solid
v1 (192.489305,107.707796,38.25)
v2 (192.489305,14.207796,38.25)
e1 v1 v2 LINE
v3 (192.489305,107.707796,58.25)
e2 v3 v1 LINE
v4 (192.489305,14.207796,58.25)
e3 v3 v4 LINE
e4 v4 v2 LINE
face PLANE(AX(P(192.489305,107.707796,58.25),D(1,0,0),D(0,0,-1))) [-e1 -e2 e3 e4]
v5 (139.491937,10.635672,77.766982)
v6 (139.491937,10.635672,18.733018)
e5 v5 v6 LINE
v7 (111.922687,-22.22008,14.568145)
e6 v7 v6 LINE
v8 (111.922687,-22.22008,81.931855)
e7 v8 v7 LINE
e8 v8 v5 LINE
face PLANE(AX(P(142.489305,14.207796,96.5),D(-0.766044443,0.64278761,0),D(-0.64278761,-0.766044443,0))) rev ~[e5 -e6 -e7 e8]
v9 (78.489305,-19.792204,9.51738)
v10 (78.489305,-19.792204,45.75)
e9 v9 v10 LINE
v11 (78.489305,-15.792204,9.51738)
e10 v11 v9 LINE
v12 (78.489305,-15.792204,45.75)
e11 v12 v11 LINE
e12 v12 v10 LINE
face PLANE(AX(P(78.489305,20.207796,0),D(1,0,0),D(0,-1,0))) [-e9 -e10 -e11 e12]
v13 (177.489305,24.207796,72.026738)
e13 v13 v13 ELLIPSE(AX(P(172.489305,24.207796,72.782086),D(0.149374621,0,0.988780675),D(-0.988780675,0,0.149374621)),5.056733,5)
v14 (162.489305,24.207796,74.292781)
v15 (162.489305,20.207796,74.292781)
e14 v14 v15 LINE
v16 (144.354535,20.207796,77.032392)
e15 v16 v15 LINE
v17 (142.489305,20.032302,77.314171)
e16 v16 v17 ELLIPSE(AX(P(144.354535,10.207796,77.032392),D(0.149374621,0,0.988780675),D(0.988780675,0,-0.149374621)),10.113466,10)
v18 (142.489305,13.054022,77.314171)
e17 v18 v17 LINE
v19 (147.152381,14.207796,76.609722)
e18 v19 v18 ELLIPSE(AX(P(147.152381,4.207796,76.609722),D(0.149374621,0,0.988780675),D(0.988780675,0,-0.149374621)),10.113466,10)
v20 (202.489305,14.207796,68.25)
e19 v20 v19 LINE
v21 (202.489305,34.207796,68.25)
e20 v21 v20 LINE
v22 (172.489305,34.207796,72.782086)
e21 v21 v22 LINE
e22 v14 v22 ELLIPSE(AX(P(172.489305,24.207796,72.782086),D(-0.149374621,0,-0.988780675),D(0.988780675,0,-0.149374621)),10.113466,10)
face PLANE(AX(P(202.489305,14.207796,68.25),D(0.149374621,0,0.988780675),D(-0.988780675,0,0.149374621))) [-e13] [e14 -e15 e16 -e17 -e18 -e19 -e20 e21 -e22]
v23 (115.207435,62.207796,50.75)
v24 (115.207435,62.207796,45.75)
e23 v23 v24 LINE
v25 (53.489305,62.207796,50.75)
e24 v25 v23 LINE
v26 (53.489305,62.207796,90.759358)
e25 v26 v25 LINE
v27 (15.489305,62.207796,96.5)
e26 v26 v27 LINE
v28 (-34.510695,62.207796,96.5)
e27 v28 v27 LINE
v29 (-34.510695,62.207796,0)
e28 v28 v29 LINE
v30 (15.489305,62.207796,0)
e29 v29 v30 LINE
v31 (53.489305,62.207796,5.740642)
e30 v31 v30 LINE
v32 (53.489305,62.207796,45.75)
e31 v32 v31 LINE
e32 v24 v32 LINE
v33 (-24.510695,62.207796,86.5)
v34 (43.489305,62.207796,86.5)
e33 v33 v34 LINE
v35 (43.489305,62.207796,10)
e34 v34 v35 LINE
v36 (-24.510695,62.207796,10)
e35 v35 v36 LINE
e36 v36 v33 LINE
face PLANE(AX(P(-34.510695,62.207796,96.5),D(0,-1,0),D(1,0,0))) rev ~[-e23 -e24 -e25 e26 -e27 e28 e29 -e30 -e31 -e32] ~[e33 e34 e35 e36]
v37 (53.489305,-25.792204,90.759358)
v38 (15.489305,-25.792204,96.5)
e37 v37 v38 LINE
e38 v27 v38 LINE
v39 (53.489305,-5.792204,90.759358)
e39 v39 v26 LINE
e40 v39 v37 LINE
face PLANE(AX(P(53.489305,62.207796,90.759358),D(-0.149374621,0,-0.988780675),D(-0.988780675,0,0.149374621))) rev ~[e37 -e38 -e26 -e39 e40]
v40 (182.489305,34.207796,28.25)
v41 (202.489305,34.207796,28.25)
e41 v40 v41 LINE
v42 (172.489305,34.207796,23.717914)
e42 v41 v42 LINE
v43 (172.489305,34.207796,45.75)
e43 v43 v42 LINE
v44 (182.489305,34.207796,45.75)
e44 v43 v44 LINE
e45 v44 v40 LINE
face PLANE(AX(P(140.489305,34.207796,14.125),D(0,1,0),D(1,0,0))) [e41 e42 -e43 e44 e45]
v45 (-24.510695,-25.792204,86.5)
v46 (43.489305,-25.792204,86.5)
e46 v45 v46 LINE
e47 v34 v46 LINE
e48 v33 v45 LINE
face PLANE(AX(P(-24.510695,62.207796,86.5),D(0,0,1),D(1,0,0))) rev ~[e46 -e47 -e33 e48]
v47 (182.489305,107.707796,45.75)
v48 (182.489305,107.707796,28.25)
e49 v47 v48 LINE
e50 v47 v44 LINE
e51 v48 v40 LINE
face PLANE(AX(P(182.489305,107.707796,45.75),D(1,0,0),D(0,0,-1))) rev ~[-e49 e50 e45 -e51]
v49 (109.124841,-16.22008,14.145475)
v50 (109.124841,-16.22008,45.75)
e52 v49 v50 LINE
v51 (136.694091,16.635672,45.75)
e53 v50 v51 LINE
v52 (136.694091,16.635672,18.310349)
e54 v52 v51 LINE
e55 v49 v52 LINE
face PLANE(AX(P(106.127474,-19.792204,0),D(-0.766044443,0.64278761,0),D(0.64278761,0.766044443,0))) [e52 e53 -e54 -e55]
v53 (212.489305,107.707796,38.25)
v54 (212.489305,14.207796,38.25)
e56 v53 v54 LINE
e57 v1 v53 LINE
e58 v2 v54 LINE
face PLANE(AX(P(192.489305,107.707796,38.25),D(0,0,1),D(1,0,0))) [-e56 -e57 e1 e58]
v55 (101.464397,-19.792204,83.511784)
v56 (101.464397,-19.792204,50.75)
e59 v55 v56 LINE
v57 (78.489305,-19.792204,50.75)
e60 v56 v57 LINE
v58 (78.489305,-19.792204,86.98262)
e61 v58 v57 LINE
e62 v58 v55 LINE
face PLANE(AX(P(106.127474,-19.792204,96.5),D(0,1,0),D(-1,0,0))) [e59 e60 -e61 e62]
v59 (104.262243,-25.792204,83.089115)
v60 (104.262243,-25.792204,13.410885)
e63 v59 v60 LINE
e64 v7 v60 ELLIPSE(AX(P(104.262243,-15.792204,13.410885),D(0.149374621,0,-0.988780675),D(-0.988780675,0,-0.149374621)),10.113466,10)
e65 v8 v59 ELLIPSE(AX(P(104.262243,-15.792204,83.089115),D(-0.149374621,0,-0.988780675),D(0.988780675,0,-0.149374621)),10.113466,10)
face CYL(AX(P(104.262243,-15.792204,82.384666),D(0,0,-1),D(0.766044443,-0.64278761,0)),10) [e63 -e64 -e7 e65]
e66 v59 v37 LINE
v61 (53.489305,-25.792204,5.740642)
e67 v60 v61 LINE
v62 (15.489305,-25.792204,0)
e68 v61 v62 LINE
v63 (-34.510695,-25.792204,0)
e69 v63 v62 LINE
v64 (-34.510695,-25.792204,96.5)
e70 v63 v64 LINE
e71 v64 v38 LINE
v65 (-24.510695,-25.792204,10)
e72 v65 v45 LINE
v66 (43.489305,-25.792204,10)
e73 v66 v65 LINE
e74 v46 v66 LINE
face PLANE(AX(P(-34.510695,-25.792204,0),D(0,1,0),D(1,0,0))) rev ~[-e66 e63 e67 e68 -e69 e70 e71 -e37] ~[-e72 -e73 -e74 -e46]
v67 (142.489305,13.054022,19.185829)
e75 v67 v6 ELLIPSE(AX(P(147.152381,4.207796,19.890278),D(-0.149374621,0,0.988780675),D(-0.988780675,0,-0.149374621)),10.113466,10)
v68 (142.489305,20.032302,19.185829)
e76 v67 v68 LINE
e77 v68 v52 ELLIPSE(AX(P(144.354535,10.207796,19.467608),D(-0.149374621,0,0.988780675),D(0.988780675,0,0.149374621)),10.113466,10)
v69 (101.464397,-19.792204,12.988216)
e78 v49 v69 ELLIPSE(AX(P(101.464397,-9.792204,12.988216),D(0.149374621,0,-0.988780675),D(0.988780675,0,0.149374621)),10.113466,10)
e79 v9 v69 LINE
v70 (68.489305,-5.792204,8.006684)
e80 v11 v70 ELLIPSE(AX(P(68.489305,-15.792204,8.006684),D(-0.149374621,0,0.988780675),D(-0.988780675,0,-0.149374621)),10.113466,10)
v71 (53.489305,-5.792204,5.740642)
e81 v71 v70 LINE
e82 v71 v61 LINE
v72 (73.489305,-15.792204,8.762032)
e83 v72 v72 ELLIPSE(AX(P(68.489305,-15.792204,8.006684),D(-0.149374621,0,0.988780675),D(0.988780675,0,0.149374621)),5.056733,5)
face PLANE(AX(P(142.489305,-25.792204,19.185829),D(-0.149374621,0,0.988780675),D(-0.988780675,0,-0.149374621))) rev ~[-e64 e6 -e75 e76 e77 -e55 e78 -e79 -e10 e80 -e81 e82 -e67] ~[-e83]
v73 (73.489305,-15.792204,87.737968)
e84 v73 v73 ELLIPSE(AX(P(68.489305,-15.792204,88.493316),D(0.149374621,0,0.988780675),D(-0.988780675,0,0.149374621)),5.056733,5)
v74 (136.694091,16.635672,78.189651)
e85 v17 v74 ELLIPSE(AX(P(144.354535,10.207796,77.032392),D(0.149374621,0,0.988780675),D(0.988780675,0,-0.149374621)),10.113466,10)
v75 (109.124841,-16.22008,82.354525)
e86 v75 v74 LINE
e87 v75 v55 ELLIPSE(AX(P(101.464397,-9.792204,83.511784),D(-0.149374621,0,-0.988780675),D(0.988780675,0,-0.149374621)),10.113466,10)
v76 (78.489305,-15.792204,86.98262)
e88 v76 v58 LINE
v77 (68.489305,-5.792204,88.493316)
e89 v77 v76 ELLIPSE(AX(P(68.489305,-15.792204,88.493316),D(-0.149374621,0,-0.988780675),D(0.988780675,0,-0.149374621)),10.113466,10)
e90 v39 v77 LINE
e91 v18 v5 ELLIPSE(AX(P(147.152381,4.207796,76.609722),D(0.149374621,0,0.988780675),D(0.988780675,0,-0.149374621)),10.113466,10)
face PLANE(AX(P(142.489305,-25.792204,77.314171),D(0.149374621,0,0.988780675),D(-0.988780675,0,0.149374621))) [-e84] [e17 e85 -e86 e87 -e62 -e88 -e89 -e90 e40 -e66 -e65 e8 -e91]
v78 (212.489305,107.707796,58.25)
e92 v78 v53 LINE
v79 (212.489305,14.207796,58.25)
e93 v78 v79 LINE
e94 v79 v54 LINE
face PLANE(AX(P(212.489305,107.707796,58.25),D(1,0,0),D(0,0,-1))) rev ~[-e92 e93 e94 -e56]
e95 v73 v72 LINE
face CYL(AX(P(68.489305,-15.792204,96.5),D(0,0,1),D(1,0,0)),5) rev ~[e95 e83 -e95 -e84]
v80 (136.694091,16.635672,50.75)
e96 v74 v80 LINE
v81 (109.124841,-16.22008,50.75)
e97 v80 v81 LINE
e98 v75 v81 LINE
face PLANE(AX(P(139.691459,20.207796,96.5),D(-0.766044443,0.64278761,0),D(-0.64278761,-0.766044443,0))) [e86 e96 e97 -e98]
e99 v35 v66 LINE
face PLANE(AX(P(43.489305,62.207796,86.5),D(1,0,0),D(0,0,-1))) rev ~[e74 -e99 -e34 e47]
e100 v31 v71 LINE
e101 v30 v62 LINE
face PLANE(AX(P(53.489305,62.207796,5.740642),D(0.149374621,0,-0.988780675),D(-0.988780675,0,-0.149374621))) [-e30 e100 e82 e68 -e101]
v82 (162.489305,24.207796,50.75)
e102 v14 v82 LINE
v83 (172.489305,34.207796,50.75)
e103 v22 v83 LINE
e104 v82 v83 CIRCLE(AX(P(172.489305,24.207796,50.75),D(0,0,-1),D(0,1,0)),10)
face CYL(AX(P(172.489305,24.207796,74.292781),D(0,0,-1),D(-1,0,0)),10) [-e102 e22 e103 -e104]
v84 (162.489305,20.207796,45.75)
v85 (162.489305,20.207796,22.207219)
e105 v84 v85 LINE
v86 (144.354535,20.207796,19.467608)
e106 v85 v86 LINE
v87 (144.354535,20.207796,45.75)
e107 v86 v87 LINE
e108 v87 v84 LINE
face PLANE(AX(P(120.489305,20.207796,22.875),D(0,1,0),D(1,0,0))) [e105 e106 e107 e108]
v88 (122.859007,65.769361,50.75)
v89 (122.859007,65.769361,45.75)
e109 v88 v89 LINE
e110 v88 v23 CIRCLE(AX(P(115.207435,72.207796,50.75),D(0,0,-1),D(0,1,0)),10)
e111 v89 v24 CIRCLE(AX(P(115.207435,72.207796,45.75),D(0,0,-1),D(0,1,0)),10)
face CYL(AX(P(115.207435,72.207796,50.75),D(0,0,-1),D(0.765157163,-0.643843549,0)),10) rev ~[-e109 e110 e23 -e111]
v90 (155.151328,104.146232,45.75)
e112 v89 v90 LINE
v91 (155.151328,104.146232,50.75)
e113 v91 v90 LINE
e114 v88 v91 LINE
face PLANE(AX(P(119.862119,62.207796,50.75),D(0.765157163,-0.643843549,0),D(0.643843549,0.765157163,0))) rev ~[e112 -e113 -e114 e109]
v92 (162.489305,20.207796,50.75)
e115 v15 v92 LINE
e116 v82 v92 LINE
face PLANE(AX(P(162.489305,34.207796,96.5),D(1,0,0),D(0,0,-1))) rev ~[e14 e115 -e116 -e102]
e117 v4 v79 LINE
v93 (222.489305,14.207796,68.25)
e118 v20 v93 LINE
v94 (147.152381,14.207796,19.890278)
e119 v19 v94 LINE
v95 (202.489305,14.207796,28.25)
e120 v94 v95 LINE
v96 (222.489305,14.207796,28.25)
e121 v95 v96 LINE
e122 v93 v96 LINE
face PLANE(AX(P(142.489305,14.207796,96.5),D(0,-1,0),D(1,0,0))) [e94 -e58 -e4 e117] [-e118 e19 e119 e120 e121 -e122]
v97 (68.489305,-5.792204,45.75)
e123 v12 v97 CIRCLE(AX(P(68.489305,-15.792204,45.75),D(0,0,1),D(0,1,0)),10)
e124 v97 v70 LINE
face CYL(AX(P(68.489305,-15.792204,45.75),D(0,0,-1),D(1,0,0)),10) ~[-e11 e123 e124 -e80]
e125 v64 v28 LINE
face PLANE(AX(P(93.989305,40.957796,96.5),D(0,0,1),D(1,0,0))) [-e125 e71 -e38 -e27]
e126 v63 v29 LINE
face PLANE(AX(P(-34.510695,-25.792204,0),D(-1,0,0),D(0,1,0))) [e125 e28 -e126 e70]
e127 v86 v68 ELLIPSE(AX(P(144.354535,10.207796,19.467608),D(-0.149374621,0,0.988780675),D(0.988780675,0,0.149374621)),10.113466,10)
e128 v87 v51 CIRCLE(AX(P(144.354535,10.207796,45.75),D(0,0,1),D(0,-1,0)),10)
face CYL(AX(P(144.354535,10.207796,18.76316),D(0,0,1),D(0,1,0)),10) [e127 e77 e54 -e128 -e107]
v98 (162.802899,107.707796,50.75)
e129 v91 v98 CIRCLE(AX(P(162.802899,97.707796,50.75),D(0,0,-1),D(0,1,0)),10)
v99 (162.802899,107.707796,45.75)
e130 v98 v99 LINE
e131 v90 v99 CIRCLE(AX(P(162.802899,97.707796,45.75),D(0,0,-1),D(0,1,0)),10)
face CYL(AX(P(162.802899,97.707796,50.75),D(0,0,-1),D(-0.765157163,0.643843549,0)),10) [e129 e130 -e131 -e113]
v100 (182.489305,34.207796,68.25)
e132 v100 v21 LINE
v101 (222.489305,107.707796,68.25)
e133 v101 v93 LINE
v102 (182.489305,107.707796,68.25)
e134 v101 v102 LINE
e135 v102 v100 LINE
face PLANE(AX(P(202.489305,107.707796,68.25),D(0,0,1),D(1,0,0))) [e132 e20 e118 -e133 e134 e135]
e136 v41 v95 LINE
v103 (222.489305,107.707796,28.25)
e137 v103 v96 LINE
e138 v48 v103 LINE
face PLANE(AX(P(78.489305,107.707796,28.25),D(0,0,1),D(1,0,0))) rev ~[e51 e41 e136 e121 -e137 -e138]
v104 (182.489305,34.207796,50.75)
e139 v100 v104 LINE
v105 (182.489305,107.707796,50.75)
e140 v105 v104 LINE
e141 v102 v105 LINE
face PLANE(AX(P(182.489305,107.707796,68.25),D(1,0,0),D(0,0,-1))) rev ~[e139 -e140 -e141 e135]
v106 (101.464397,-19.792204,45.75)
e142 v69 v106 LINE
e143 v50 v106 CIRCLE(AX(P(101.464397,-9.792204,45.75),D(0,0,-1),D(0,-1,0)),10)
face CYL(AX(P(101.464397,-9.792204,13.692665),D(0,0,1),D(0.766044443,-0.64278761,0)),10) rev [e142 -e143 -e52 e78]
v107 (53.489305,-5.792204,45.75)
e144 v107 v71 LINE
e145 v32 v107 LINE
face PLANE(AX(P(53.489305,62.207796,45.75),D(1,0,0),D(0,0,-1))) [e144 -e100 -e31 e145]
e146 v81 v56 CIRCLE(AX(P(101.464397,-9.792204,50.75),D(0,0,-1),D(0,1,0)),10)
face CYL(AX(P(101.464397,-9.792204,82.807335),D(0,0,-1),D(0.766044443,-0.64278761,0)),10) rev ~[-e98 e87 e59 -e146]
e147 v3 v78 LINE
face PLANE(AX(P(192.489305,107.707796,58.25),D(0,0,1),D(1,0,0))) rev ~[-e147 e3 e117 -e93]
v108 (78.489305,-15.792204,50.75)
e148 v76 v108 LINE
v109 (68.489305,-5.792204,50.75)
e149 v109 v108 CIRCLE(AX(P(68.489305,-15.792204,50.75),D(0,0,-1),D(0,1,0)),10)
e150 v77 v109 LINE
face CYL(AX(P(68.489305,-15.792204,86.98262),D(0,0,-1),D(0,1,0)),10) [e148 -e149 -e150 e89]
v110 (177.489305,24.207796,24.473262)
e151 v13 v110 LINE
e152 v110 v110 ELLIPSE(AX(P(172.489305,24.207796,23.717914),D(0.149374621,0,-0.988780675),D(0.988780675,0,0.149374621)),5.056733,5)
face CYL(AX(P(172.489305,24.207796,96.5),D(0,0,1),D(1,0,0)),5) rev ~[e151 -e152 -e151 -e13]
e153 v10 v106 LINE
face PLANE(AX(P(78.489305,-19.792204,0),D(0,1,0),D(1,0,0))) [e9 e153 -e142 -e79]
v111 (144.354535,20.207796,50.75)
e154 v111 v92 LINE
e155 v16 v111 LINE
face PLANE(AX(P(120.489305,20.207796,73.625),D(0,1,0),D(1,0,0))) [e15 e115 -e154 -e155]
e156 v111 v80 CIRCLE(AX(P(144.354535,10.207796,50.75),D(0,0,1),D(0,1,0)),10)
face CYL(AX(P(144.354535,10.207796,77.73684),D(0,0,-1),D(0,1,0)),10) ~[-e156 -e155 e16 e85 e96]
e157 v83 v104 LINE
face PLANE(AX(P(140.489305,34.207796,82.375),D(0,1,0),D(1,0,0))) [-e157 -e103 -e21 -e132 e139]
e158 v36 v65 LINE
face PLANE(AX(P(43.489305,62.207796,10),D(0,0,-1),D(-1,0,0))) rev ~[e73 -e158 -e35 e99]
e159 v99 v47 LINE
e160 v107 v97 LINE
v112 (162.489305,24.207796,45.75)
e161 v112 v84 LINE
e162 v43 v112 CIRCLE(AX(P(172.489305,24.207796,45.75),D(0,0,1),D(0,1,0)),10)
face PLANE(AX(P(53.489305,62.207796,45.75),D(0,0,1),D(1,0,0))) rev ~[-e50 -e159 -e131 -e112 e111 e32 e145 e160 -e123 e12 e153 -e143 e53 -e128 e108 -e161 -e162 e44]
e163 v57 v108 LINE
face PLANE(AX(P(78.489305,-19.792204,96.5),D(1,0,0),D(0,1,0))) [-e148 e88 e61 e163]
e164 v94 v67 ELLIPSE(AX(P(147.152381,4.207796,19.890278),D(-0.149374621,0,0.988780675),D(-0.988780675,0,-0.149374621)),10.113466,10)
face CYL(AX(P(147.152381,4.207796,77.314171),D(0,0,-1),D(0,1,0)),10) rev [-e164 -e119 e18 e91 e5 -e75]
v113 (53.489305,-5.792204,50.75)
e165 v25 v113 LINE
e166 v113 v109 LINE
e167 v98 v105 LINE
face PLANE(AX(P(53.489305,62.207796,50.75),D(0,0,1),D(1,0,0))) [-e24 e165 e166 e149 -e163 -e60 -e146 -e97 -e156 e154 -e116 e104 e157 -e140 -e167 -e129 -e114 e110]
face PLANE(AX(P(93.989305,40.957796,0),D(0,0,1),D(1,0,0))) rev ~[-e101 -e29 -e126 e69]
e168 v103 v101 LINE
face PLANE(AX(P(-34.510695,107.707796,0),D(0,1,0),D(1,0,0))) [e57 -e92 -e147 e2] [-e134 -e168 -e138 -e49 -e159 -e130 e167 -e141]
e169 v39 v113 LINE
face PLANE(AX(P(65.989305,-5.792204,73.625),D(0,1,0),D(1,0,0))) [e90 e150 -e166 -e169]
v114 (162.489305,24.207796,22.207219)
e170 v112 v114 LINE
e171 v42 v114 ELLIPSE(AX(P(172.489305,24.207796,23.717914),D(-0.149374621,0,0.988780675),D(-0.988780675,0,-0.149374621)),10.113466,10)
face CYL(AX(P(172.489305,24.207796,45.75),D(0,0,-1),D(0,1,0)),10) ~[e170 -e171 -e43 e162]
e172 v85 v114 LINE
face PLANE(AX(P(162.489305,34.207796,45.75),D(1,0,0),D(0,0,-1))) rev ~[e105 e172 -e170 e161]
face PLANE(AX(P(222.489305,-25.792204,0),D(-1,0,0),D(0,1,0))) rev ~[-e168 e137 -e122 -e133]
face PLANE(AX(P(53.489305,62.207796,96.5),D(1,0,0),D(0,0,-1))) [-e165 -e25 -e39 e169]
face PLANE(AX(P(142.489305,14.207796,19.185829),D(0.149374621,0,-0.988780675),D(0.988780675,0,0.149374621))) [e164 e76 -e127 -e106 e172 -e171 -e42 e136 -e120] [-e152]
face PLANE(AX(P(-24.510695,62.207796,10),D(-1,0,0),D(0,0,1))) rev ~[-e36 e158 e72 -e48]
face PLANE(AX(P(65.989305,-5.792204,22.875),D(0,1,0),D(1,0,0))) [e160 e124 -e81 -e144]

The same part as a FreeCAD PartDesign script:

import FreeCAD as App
import Part
import Sketcher

V = App.Vector
Q = App.Units.Quantity


def edges_at(feature, points):
    """Names of the edges that pass closest to the given points."""
    edges = feature.Shape.Edges
    near = lambda p: min(range(len(edges)), key=lambda i: edges[i].distToShape(Part.Vertex(*p))[0])
    return sorted({f"Edge{near(p) + 1}" for p in points})


def add_polygon(sketch, points):
    """Adds a closed chain of lines whose ends are joined by coincident constraints."""
    first, n = sketch.GeometryCount, len(points)
    for a, b in zip(points, points[1:] + points[:1]):
        sketch.addGeometry(Part.LineSegment(App.Vector(*a, 0), App.Vector(*b, 0)), False)
    for i in range(n):
        sketch.addConstraint(Sketcher.Constraint("Coincident", first + i, 2, first + (i + 1) % n, 1))

doc = App.newDocument("Part")
body = doc.addObject("PartDesign::Body", "Body")

# Sketch on XY plane
sketch1 = body.newObject("Sketcher::SketchObject", "Sketch")
sketch1.AttachmentSupport = (doc.getObject("XY_Plane"), [""])
sketch1.MapMode = "FlatFace"
add_polygon(sketch1, [(-35, 108), (-35, -26), (222, -26), (222, 108)])  # lines 0-3
sketch1.addConstraint(Sketcher.Constraint("Vertical", 0))
sketch1.addConstraint(Sketcher.Constraint("Horizontal", 1))
sketch1.addConstraint(Sketcher.Constraint("Vertical", 2))
sketch1.addConstraint(Sketcher.Constraint("Horizontal", 3))
sketch1.addConstraint(Sketcher.Constraint("DistanceX", 1, 1, 1, 2, Q("257 mm")))
sketch1.addConstraint(Sketcher.Constraint("DistanceY", 0, 2, 0, 1, Q("133.5 mm")))
sketch1.addConstraint(Sketcher.Constraint("DistanceX", 0, 2, -1, 1, Q("34.510695 mm")))
sketch1.addConstraint(Sketcher.Constraint("DistanceY", 0, 2, -1, 1, Q("25.792204 mm")))
pad1 = body.newObject("PartDesign::Pad", "Pad")
pad1.Profile = sketch1
pad1.Length = 96.5

# Sketch on XY plane
sketch2 = body.newObject("Sketcher::SketchObject", "Sketch001")
sketch2.AttachmentSupport = (doc.getObject("XY_Plane"), [""])
sketch2.MapMode = "FlatFace"
sketch2.AttachmentOffset = App.Placement(V(0, 0, 96.5), App.Rotation())
add_polygon(sketch2, [(-35, 108), (-35, 62), (78, 62), (78, 108)])  # lines 0-3
add_polygon(sketch2, [(142, 14), (142, -26), (222, -26), (222, 14)])  # lines 4-7
sketch2.addConstraint(Sketcher.Constraint("Vertical", 0))
sketch2.addConstraint(Sketcher.Constraint("Horizontal", 1))
sketch2.addConstraint(Sketcher.Constraint("Vertical", 2))
sketch2.addConstraint(Sketcher.Constraint("Horizontal", 3))
sketch2.addConstraint(Sketcher.Constraint("Vertical", 4))
sketch2.addConstraint(Sketcher.Constraint("Horizontal", 5))
sketch2.addConstraint(Sketcher.Constraint("Vertical", 6))
sketch2.addConstraint(Sketcher.Constraint("Horizontal", 7))
sketch2.addConstraint(Sketcher.Constraint("DistanceX", 1, 1, 1, 2, Q("113 mm")))
sketch2.addConstraint(Sketcher.Constraint("DistanceX", 5, 1, 5, 2, Q("80 mm")))
sketch2.addConstraint(Sketcher.Constraint("DistanceY", 4, 2, 4, 1, Q("40 mm")))
sketch2.addConstraint(Sketcher.Constraint("DistanceY", 0, 2, 0, 1, Q("45.5 mm")))
sketch2.addConstraint(Sketcher.Constraint("DistanceX", 1, 2, 4, 2, Q("64 mm")))
sketch2.addConstraint(Sketcher.Constraint("DistanceY", 4, 2, 1, 2, Q("88 mm")))
sketch2.addConstraint(Sketcher.Constraint("DistanceX", 0, 2, -1, 1, Q("34.510695 mm")))
sketch2.addConstraint(Sketcher.Constraint("DistanceY", -1, 1, 0, 2, Q("62.207796 mm")))
pocket1 = body.newObject("PartDesign::Pocket", "Pocket")
pocket1.Profile = sketch2
pocket1.Length = 96.5

# Sketch on XZ plane
sketch3 = body.newObject("Sketcher::SketchObject", "Sketch002")
sketch3.AttachmentSupport = (doc.getObject("XZ_Plane"), [""])
sketch3.MapMode = "FlatFace"
sketch3.AttachmentOffset = App.Placement(V(0, 0, -62.207796), App.Rotation())
add_polygon(sketch3, [(-25, 10), (-25, 86), (43, 86), (43, 10)])  # lines 0-3
sketch3.addConstraint(Sketcher.Constraint("Vertical", 0))
sketch3.addConstraint(Sketcher.Constraint("Horizontal", 1))
sketch3.addConstraint(Sketcher.Constraint("Vertical", 2))
sketch3.addConstraint(Sketcher.Constraint("Horizontal", 3))
sketch3.addConstraint(Sketcher.Constraint("DistanceX", 1, 1, 1, 2, Q("68 mm")))
sketch3.addConstraint(Sketcher.Constraint("DistanceY", 0, 1, 0, 2, Q("76.5 mm")))
sketch3.addConstraint(Sketcher.Constraint("DistanceY", -1, 1, 2, 2, Q("10 mm")))
sketch3.addConstraint(Sketcher.Constraint("DistanceX", 0, 2, -1, 1, Q("24.510695 mm")))
pocket2 = body.newObject("PartDesign::Pocket", "Pocket001")
pocket2.Profile = sketch3
pocket2.Length = 88
pocket2.Reversed = True

# Sketch on XZ plane
sketch4 = body.newObject("Sketcher::SketchObject", "Sketch003")
sketch4.AttachmentSupport = (doc.getObject("XZ_Plane"), [""])
sketch4.MapMode = "FlatFace"
sketch4.AttachmentOffset = App.Placement(V(0, 0, -107.707796), App.Rotation())
add_polygon(sketch4, [(202, 0), (202, 28), (222, 28), (222, 0)])  # lines 0-3
add_polygon(sketch4, [(202, 68), (202, 96), (222, 96), (222, 68)])  # lines 4-7
sketch4.addConstraint(Sketcher.Constraint("Vertical", 0))
sketch4.addConstraint(Sketcher.Constraint("Horizontal", 1))
sketch4.addConstraint(Sketcher.Constraint("Vertical", 2))
sketch4.addConstraint(Sketcher.Constraint("Horizontal", 3))
sketch4.addConstraint(Sketcher.Constraint("Vertical", 4))
sketch4.addConstraint(Sketcher.Constraint("Horizontal", 5))
sketch4.addConstraint(Sketcher.Constraint("Vertical", 6))
sketch4.addConstraint(Sketcher.Constraint("Horizontal", 7))
sketch4.addConstraint(Sketcher.Constraint("PointOnObject", 2, 2, -1))
sketch4.addConstraint(Sketcher.Constraint("Vertical", 3, 2, 4, 2))
sketch4.addConstraint(Sketcher.Constraint("Vertical", 2, 2, 5, 2))
sketch4.addConstraint(Sketcher.Constraint("Equal", 2, 4))
sketch4.addConstraint(Sketcher.Constraint("DistanceX", 1, 1, 1, 2, Q("20 mm")))
sketch4.addConstraint(Sketcher.Constraint("DistanceY", 1, 2, 6, 2, Q("40 mm")))
sketch4.addConstraint(Sketcher.Constraint("DistanceY", 0, 1, 0, 2, Q("28.25 mm")))
sketch4.addConstraint(Sketcher.Constraint("DistanceX", -1, 1, 0, 2, Q("202.489305 mm")))
pocket3 = body.newObject("PartDesign::Pocket", "Pocket002")
pocket3.Profile = sketch4
pocket3.Length = 93.5
pocket3.Reversed = True

# Sketch on XZ plane
sketch5 = body.newObject("Sketcher::SketchObject", "Sketch004")
sketch5.AttachmentSupport = (doc.getObject("XZ_Plane"), [""])
sketch5.MapMode = "FlatFace"
sketch5.AttachmentOffset = App.Placement(V(0, 0, -107.707796), App.Rotation())
add_polygon(sketch5, [(78, 0), (78, 28), (202, 28), (202, 0)])  # lines 0-3
add_polygon(sketch5, [(78, 68), (78, 96), (202, 96), (202, 68)])  # lines 4-7
sketch5.addConstraint(Sketcher.Constraint("Vertical", 0))
sketch5.addConstraint(Sketcher.Constraint("Horizontal", 1))
sketch5.addConstraint(Sketcher.Constraint("Vertical", 2))
sketch5.addConstraint(Sketcher.Constraint("Horizontal", 3))
sketch5.addConstraint(Sketcher.Constraint("Vertical", 4))
sketch5.addConstraint(Sketcher.Constraint("Horizontal", 5))
sketch5.addConstraint(Sketcher.Constraint("Vertical", 6))
sketch5.addConstraint(Sketcher.Constraint("Horizontal", 7))
sketch5.addConstraint(Sketcher.Constraint("PointOnObject", 2, 2, -1))
sketch5.addConstraint(Sketcher.Constraint("Vertical", 3, 2, 4, 2))
sketch5.addConstraint(Sketcher.Constraint("Vertical", 2, 2, 5, 2))
sketch5.addConstraint(Sketcher.Constraint("Equal", 2, 4))
sketch5.addConstraint(Sketcher.Constraint("DistanceX", 1, 1, 1, 2, Q("124 mm")))
sketch5.addConstraint(Sketcher.Constraint("DistanceY", 1, 2, 6, 2, Q("40 mm")))
sketch5.addConstraint(Sketcher.Constraint("DistanceY", 0, 1, 0, 2, Q("28.25 mm")))
sketch5.addConstraint(Sketcher.Constraint("DistanceX", -1, 1, 0, 2, Q("78.489305 mm")))
pocket4 = body.newObject("PartDesign::Pocket", "Pocket003")
pocket4.Profile = sketch5
pocket4.Length = 73.5
pocket4.Reversed = True

# Sketch on XZ plane
sketch6 = body.newObject("Sketcher::SketchObject", "Sketch005")
sketch6.AttachmentSupport = (doc.getObject("XZ_Plane"), [""])
sketch6.MapMode = "FlatFace"
sketch6.AttachmentOffset = App.Placement(V(0, 0, -107.707796), App.Rotation())
add_polygon(sketch6, [(78, 28), (78, 46), (182, 46), (182, 28)])  # lines 0-3
add_polygon(sketch6, [(78, 51), (78, 68), (182, 68), (182, 51)])  # lines 4-7
sketch6.addConstraint(Sketcher.Constraint("Vertical", 0))
sketch6.addConstraint(Sketcher.Constraint("Horizontal", 1))
sketch6.addConstraint(Sketcher.Constraint("Vertical", 2))
sketch6.addConstraint(Sketcher.Constraint("Horizontal", 3))
sketch6.addConstraint(Sketcher.Constraint("Vertical", 4))
sketch6.addConstraint(Sketcher.Constraint("Horizontal", 5))
sketch6.addConstraint(Sketcher.Constraint("Vertical", 6))
sketch6.addConstraint(Sketcher.Constraint("Horizontal", 7))
sketch6.addConstraint(Sketcher.Constraint("Vertical", 3, 2, 4, 2))
sketch6.addConstraint(Sketcher.Constraint("Vertical", 2, 2, 5, 2))
sketch6.addConstraint(Sketcher.Constraint("Equal", 2, 4))
sketch6.addConstraint(Sketcher.Constraint("DistanceX", 1, 1, 1, 2, Q("104 mm")))
sketch6.addConstraint(Sketcher.Constraint("DistanceY", 0, 1, 0, 2, Q("17.5 mm")))
sketch6.addConstraint(Sketcher.Constraint("DistanceY", 3, 2, 4, 2, Q("40 mm")))
sketch6.addConstraint(Sketcher.Constraint("DistanceY", -1, 1, 0, 2, Q("45.75 mm")))
sketch6.addConstraint(Sketcher.Constraint("DistanceX", -1, 1, 0, 2, Q("78.489305 mm")))
pocket5 = body.newObject("PartDesign::Pocket", "Pocket004")
pocket5.Profile = sketch6
pocket5.Length = 73.5
pocket5.Reversed = True

# Sketch on XZ plane
sketch7 = body.newObject("Sketcher::SketchObject", "Sketch006")
sketch7.AttachmentSupport = (doc.getObject("XZ_Plane"), [""])
sketch7.MapMode = "FlatFace"
sketch7.AttachmentOffset = App.Placement(V(0, 0, -62.207796), App.Rotation())
add_polygon(sketch7, [(53, 51), (53, 96), (78, 96), (78, 51)])  # lines 0-3
add_polygon(sketch7, [(53, 0), (53, 46), (78, 46), (78, 0)])  # lines 4-7
sketch7.addConstraint(Sketcher.Constraint("Vertical", 0))
sketch7.addConstraint(Sketcher.Constraint("Horizontal", 1))
sketch7.addConstraint(Sketcher.Constraint("Vertical", 2))
sketch7.addConstraint(Sketcher.Constraint("Horizontal", 3))
sketch7.addConstraint(Sketcher.Constraint("Vertical", 4))
sketch7.addConstraint(Sketcher.Constraint("Horizontal", 5))
sketch7.addConstraint(Sketcher.Constraint("Vertical", 6))
sketch7.addConstraint(Sketcher.Constraint("Horizontal", 7))
sketch7.addConstraint(Sketcher.Constraint("PointOnObject", 6, 2, -1))
sketch7.addConstraint(Sketcher.Constraint("Vertical", 3, 2, 4, 2))
sketch7.addConstraint(Sketcher.Constraint("Vertical", 2, 2, 5, 2))
sketch7.addConstraint(Sketcher.Constraint("Equal", 2, 4))
sketch7.addConstraint(Sketcher.Constraint("DistanceX", 1, 1, 1, 2, Q("25 mm")))
sketch7.addConstraint(Sketcher.Constraint("DistanceY", 4, 2, 3, 2, Q("5 mm")))
sketch7.addConstraint(Sketcher.Constraint("DistanceY", 0, 1, 0, 2, Q("45.75 mm")))
sketch7.addConstraint(Sketcher.Constraint("DistanceX", -1, 1, 0, 2, Q("53.489305 mm")))
pocket6 = body.newObject("PartDesign::Pocket", "Pocket005")
pocket6.Profile = sketch7
pocket6.Length = 68
pocket6.Reversed = True

# Sketch on XZ plane
sketch8 = body.newObject("Sketcher::SketchObject", "Sketch007")
sketch8.AttachmentSupport = (doc.getObject("XZ_Plane"), [""])
sketch8.MapMode = "FlatFace"
sketch8.AttachmentOffset = App.Placement(V(0, 0, -34.207796), App.Rotation())
add_polygon(sketch8, [(78, 51), (78, 96), (162, 96), (162, 51)])  # lines 0-3
sketch8.addConstraint(Sketcher.Constraint("Vertical", 0))
sketch8.addConstraint(Sketcher.Constraint("Horizontal", 1))
sketch8.addConstraint(Sketcher.Constraint("Vertical", 2))
sketch8.addConstraint(Sketcher.Constraint("Horizontal", 3))
sketch8.addConstraint(Sketcher.Constraint("DistanceX", 1, 1, 1, 2, Q("84 mm")))
sketch8.addConstraint(Sketcher.Constraint("DistanceY", 0, 1, 0, 2, Q("45.75 mm")))
sketch8.addConstraint(Sketcher.Constraint("DistanceY", -1, 1, 0, 2, Q("96.5 mm")))
sketch8.addConstraint(Sketcher.Constraint("DistanceX", -1, 1, 0, 2, Q("78.489305 mm")))
pocket7 = body.newObject("PartDesign::Pocket", "Pocket006")
pocket7.Profile = sketch8
pocket7.Length = 14
pocket7.Reversed = True

# Sketch on XZ plane
sketch9 = body.newObject("Sketcher::SketchObject", "Sketch008")
sketch9.AttachmentSupport = (doc.getObject("XZ_Plane"), [""])
sketch9.MapMode = "FlatFace"
sketch9.AttachmentOffset = App.Placement(V(0, 0, -34.207796), App.Rotation())
add_polygon(sketch9, [(78, 0), (78, 46), (162, 46), (162, 0)])  # lines 0-3
sketch9.addConstraint(Sketcher.Constraint("Vertical", 0))
sketch9.addConstraint(Sketcher.Constraint("Horizontal", 1))
sketch9.addConstraint(Sketcher.Constraint("Vertical", 2))
sketch9.addConstraint(Sketcher.Constraint("Horizontal", 3))
sketch9.addConstraint(Sketcher.Constraint("PointOnObject", 2, 2, -1))
sketch9.addConstraint(Sketcher.Constraint("DistanceX", 1, 1, 1, 2, Q("84 mm")))
sketch9.addConstraint(Sketcher.Constraint("DistanceY", 0, 1, 0, 2, Q("45.75 mm")))
sketch9.addConstraint(Sketcher.Constraint("DistanceX", -1, 1, 0, 2, Q("78.489305 mm")))
pocket8 = body.newObject("PartDesign::Pocket", "Pocket007")
pocket8.Profile = sketch9
pocket8.Length = 14
pocket8.Reversed = True

# Sketch on XY plane
sketch10 = body.newObject("Sketcher::SketchObject", "Sketch009")
sketch10.AttachmentSupport = (doc.getObject("XY_Plane"), [""])
sketch10.MapMode = "FlatFace"
sketch10.AttachmentOffset = App.Placement(V(0, 0, 96.5), App.Rotation())
add_polygon(sketch10, [(106, -20), (140, 20), (78, 20), (78, -20)])  # lines 0-3
sketch10.addConstraint(Sketcher.Constraint("Horizontal", 1))
sketch10.addConstraint(Sketcher.Constraint("Vertical", 2))
sketch10.addConstraint(Sketcher.Constraint("Horizontal", 3))
sketch10.addConstraint(Sketcher.Constraint("DistanceY", 2, 2, 2, 1, Q("40 mm")))
sketch10.addConstraint(Sketcher.Constraint("Angle", 0, Q("50 deg")))
sketch10.addConstraint(Sketcher.Constraint("DistanceX", 3, 1, 3, 2, Q("27.638169 mm")))
sketch10.addConstraint(Sketcher.Constraint("DistanceX", -1, 1, 0, 2, Q("139.691459 mm")))
sketch10.addConstraint(Sketcher.Constraint("DistanceY", -1, 1, 0, 2, Q("20.207796 mm")))
pocket9 = body.newObject("PartDesign::Pocket", "Pocket008")
pocket9.Profile = sketch10
pocket9.Length = 45.75

# Sketch on XY plane
sketch11 = body.newObject("Sketcher::SketchObject", "Sketch010")
sketch11.AttachmentSupport = (doc.getObject("XY_Plane"), [""])
sketch11.MapMode = "FlatFace"
sketch11.AttachmentOffset = App.Placement(V(0, 0, 96.5), App.Rotation())
add_polygon(sketch11, [(142, 14), (109, -26), (142, -26)])  # lines 0-2
sketch11.addConstraint(Sketcher.Constraint("Horizontal", 1))
sketch11.addConstraint(Sketcher.Constraint("Vertical", 2))
sketch11.addConstraint(Sketcher.Constraint("DistanceY", 2, 1, 2, 2, Q("40 mm")))
sketch11.addConstraint(Sketcher.Constraint("Angle", 0, Q("-130 deg")))
sketch11.addConstraint(Sketcher.Constraint("DistanceX", -1, 1, 0, 2, Q("108.92532 mm")))
sketch11.addConstraint(Sketcher.Constraint("DistanceY", 0, 2, -1, 1, Q("25.792204 mm")))
pocket10 = body.newObject("PartDesign::Pocket", "Pocket009")
pocket10.Profile = sketch11
pocket10.Length = 96.5

# Sketch on XY plane
sketch12 = body.newObject("Sketcher::SketchObject", "Sketch011")
sketch12.AttachmentSupport = (doc.getObject("XY_Plane"), [""])
sketch12.MapMode = "FlatFace"
add_polygon(sketch12, [(106, -20), (78, -20), (78, 20), (140, 20)])  # lines 0-3
sketch12.addConstraint(Sketcher.Constraint("Horizontal", 0))
sketch12.addConstraint(Sketcher.Constraint("Vertical", 1))
sketch12.addConstraint(Sketcher.Constraint("Horizontal", 2))
sketch12.addConstraint(Sketcher.Constraint("DistanceY", 1, 1, 1, 2, Q("40 mm")))
sketch12.addConstraint(Sketcher.Constraint("Angle", 3, Q("-130 deg")))
sketch12.addConstraint(Sketcher.Constraint("DistanceX", 0, 2, 0, 1, Q("27.638169 mm")))
sketch12.addConstraint(Sketcher.Constraint("DistanceX", -1, 1, 2, 2, Q("139.691459 mm")))
sketch12.addConstraint(Sketcher.Constraint("DistanceY", 0, 2, -1, 1, Q("19.792204 mm")))
pocket11 = body.newObject("PartDesign::Pocket", "Pocket010")
pocket11.Profile = sketch12
pocket11.Length = 45.75
pocket11.Reversed = True

# Sketch on XY plane
sketch13 = body.newObject("Sketcher::SketchObject", "Sketch012")
sketch13.AttachmentSupport = (doc.getObject("XY_Plane"), [""])
sketch13.MapMode = "FlatFace"
sketch13.AttachmentOffset = App.Placement(V(0, 0, 50.75), App.Rotation())
add_polygon(sketch13, [(78, 62), (120, 62), (158, 108), (78, 108)])  # lines 0-3
sketch13.addConstraint(Sketcher.Constraint("Horizontal", 0))
sketch13.addConstraint(Sketcher.Constraint("Horizontal", 2))
sketch13.addConstraint(Sketcher.Constraint("Vertical", 3))
sketch13.addConstraint(Sketcher.Constraint("DistanceY", 3, 2, 3, 1, Q("45.5 mm")))
sketch13.addConstraint(Sketcher.Constraint("DistanceX", 2, 2, 2, 1, Q("79.658911 mm")))
sketch13.addConstraint(Sketcher.Constraint("DistanceX", 0, 1, 0, 2, Q("41.372814 mm")))
sketch13.addConstraint(Sketcher.Constraint("DistanceX", -1, 1, 0, 2, Q("119.862119 mm")))
sketch13.addConstraint(Sketcher.Constraint("DistanceY", -1, 1, 0, 2, Q("62.207796 mm")))
pocket12 = body.newObject("PartDesign::Pocket", "Pocket011")
pocket12.Profile = sketch13
pocket12.Length = 5

# Sketch on XY plane
sketch14 = body.newObject("Sketcher::SketchObject", "Sketch013")
sketch14.AttachmentSupport = (doc.getObject("XY_Plane"), [""])
sketch14.MapMode = "FlatFace"
sketch14.AttachmentOffset = App.Placement(V(0, 0, 96.5), App.Rotation())
sketch14.addGeometry(Part.Circle(V(172, 24, 0), V(0, 0, 1), 5), False)
sketch14.addGeometry(Part.Circle(V(68, -16, 0), V(0, 0, 1), 5), False)
sketch14.addConstraint(Sketcher.Constraint("Equal", 0, 1))
sketch14.addConstraint(Sketcher.Constraint("Diameter", 0, Q("10 mm")))
sketch14.addConstraint(Sketcher.Constraint("DistanceX", 1, 3, 0, 3, Q("104 mm")))
sketch14.addConstraint(Sketcher.Constraint("DistanceY", 1, 3, 0, 3, Q("40 mm")))
sketch14.addConstraint(Sketcher.Constraint("DistanceX", -1, 1, 0, 3, Q("172.489305 mm")))
sketch14.addConstraint(Sketcher.Constraint("DistanceY", -1, 1, 0, 3, Q("24.207796 mm")))
pocket13 = body.newObject("PartDesign::Pocket", "Pocket012")
pocket13.Profile = sketch14
pocket13.Length = 96.5

# Sketch on XZ plane
sketch15 = body.newObject("Sketcher::SketchObject", "Sketch014")
sketch15.AttachmentSupport = (doc.getObject("XZ_Plane"), [""])
sketch15.MapMode = "FlatFace"
sketch15.AttachmentOffset = App.Placement(V(0, 0, -107.707796), App.Rotation())
add_polygon(sketch15, [(192, 38), (192, 58), (212, 58), (212, 38)])  # lines 0-3
sketch15.addConstraint(Sketcher.Constraint("Vertical", 0))
sketch15.addConstraint(Sketcher.Constraint("Horizontal", 1))
sketch15.addConstraint(Sketcher.Constraint("Vertical", 2))
sketch15.addConstraint(Sketcher.Constraint("Horizontal", 3))
sketch15.addConstraint(Sketcher.Constraint("Equal", 3, 0))
sketch15.addConstraint(Sketcher.Constraint("DistanceX", 1, 1, 1, 2, Q("20 mm")))
sketch15.addConstraint(Sketcher.Constraint("DistanceY", -1, 1, 0, 2, Q("58.25 mm")))
sketch15.addConstraint(Sketcher.Constraint("DistanceX", -1, 1, 0, 2, Q("192.489305 mm")))
pocket14 = body.newObject("PartDesign::Pocket", "Pocket013")
pocket14.Profile = sketch15
pocket14.Length = 93.5
pocket14.Reversed = True

# Sketch on XZ plane
sketch16 = body.newObject("Sketcher::SketchObject", "Sketch015")
sketch16.AttachmentSupport = (doc.getObject("XZ_Plane"), [""])
sketch16.MapMode = "FlatFace"
sketch16.AttachmentOffset = App.Placement(V(0, 0, -62.207796), App.Rotation())
add_polygon(sketch16, [(15, 96), (53, 96), (53, 91)])  # lines 0-2
sketch16.addConstraint(Sketcher.Constraint("Horizontal", 0))
sketch16.addConstraint(Sketcher.Constraint("Vertical", 1))
sketch16.addConstraint(Sketcher.Constraint("DistanceX", 0, 1, 0, 2, Q("38 mm")))
sketch16.addConstraint(Sketcher.Constraint("DistanceY", -1, 1, 0, 2, Q("96.5 mm")))
sketch16.addConstraint(Sketcher.Constraint("DistanceY", 1, 2, 1, 1, Q("5.740642 mm")))
sketch16.addConstraint(Sketcher.Constraint("DistanceX", -1, 1, 0, 2, Q("53.489305 mm")))
pocket15 = body.newObject("PartDesign::Pocket", "Pocket014")
pocket15.Profile = sketch16
pocket15.Length = 88
pocket15.Reversed = True

# Sketch on XZ plane
sketch17 = body.newObject("Sketcher::SketchObject", "Sketch016")
sketch17.AttachmentSupport = (doc.getObject("XZ_Plane"), [""])
sketch17.MapMode = "FlatFace"
sketch17.AttachmentOffset = App.Placement(V(0, 0, -14.207796), App.Rotation())
add_polygon(sketch17, [(202, 96), (142, 96), (142, 77), (202, 68)])  # lines 0-3
sketch17.addConstraint(Sketcher.Constraint("Horizontal", 0))
sketch17.addConstraint(Sketcher.Constraint("Vertical", 1))
sketch17.addConstraint(Sketcher.Constraint("Vertical", 3))
sketch17.addConstraint(Sketcher.Constraint("DistanceX", 0, 2, 0, 1, Q("60 mm")))
sketch17.addConstraint(Sketcher.Constraint("DistanceY", 3, 1, 3, 2, Q("28.25 mm")))
sketch17.addConstraint(Sketcher.Constraint("DistanceY", -1, 1, 0, 2, Q("96.5 mm")))
sketch17.addConstraint(Sketcher.Constraint("DistanceY", 1, 2, 1, 1, Q("19.185829 mm")))
sketch17.addConstraint(Sketcher.Constraint("DistanceX", -1, 1, 0, 2, Q("142.489305 mm")))
pocket16 = body.newObject("PartDesign::Pocket", "Pocket015")
pocket16.Profile = sketch17
pocket16.Length = 20

# Sketch on XZ plane
sketch18 = body.newObject("Sketcher::SketchObject", "Sketch017")
sketch18.AttachmentSupport = (doc.getObject("XZ_Plane"), [""])
sketch18.MapMode = "FlatFace"
sketch18.AttachmentOffset = App.Placement(V(0, 0, 25.792204), App.Rotation())
add_polygon(sketch18, [(53, 91), (142, 77), (142, 96), (53, 96)])  # lines 0-3
sketch18.addConstraint(Sketcher.Constraint("Vertical", 1))
sketch18.addConstraint(Sketcher.Constraint("Horizontal", 2))
sketch18.addConstraint(Sketcher.Constraint("Vertical", 3))
sketch18.addConstraint(Sketcher.Constraint("DistanceX", 2, 2, 2, 1, Q("89 mm")))
sketch18.addConstraint(Sketcher.Constraint("DistanceY", -1, 1, 1, 2, Q("96.5 mm")))
sketch18.addConstraint(Sketcher.Constraint("DistanceY", 1, 1, 1, 2, Q("19.185829 mm")))
sketch18.addConstraint(Sketcher.Constraint("DistanceY", 3, 2, 3, 1, Q("5.740642 mm")))
sketch18.addConstraint(Sketcher.Constraint("DistanceX", -1, 1, 0, 2, Q("142.489305 mm")))
pocket17 = body.newObject("PartDesign::Pocket", "Pocket016")
pocket17.Profile = sketch18
pocket17.Length = 50.68

# Sketch on XZ plane
sketch19 = body.newObject("Sketcher::SketchObject", "Sketch018")
sketch19.AttachmentSupport = (doc.getObject("XZ_Plane"), [""])
sketch19.MapMode = "FlatFace"
sketch19.AttachmentOffset = App.Placement(V(0, 0, -62.207796), App.Rotation())
add_polygon(sketch19, [(53, 0), (15, 0), (53, 6)])  # lines 0-2
sketch19.addConstraint(Sketcher.Constraint("Horizontal", 0))
sketch19.addConstraint(Sketcher.Constraint("Vertical", 2))
sketch19.addConstraint(Sketcher.Constraint("PointOnObject", 0, 2, -1))
sketch19.addConstraint(Sketcher.Constraint("DistanceX", 0, 2, 0, 1, Q("38 mm")))
sketch19.addConstraint(Sketcher.Constraint("DistanceY", 2, 2, 2, 1, Q("5.740642 mm")))
sketch19.addConstraint(Sketcher.Constraint("DistanceX", -1, 1, 0, 2, Q("15.489305 mm")))
pocket18 = body.newObject("PartDesign::Pocket", "Pocket017")
pocket18.Profile = sketch19
pocket18.Length = 88
pocket18.Reversed = True

# Sketch on XZ plane
sketch20 = body.newObject("Sketcher::SketchObject", "Sketch019")
sketch20.AttachmentSupport = (doc.getObject("XZ_Plane"), [""])
sketch20.MapMode = "FlatFace"
sketch20.AttachmentOffset = App.Placement(V(0, 0, 25.792204), App.Rotation())
add_polygon(sketch20, [(53, 6), (53, 0), (142, 0), (142, 19)])  # lines 0-3
sketch20.addConstraint(Sketcher.Constraint("Vertical", 0))
sketch20.addConstraint(Sketcher.Constraint("Horizontal", 1))
sketch20.addConstraint(Sketcher.Constraint("Vertical", 2))
sketch20.addConstraint(Sketcher.Constraint("PointOnObject", 0, 2, -1))
sketch20.addConstraint(Sketcher.Constraint("DistanceX", 1, 1, 1, 2, Q("89 mm")))
sketch20.addConstraint(Sketcher.Constraint("DistanceY", 0, 2, 0, 1, Q("5.740642 mm")))
sketch20.addConstraint(Sketcher.Constraint("DistanceY", 2, 1, 2, 2, Q("19.185829 mm")))
sketch20.addConstraint(Sketcher.Constraint("DistanceX", -1, 1, 0, 2, Q("53.489305 mm")))
pocket19 = body.newObject("PartDesign::Pocket", "Pocket018")
pocket19.Profile = sketch20
pocket19.Length = 88

# Sketch on XZ plane
sketch21 = body.newObject("Sketcher::SketchObject", "Sketch020")
sketch21.AttachmentSupport = (doc.getObject("XZ_Plane"), [""])
sketch21.MapMode = "FlatFace"
sketch21.AttachmentOffset = App.Placement(V(0, 0, -14.207796), App.Rotation())
add_polygon(sketch21, [(202, 28), (142, 19), (142, 0), (202, 0)])  # lines 0-3
sketch21.addConstraint(Sketcher.Constraint("Vertical", 1))
sketch21.addConstraint(Sketcher.Constraint("Horizontal", 2))
sketch21.addConstraint(Sketcher.Constraint("Vertical", 3))
sketch21.addConstraint(Sketcher.Constraint("PointOnObject", 1, 2, -1))
sketch21.addConstraint(Sketcher.Constraint("DistanceX", 2, 1, 2, 2, Q("60 mm")))
sketch21.addConstraint(Sketcher.Constraint("DistanceY", 3, 1, 3, 2, Q("28.25 mm")))
sketch21.addConstraint(Sketcher.Constraint("DistanceY", 1, 2, 1, 1, Q("19.185829 mm")))
sketch21.addConstraint(Sketcher.Constraint("DistanceX", -1, 1, 0, 2, Q("142.489305 mm")))
pocket20 = body.newObject("PartDesign::Pocket", "Pocket019")
pocket20.Profile = sketch21
pocket20.Length = 88
doc.recompute()

fillet = body.newObject("PartDesign::Fillet", "Fillet")
fillet.Base = (pocket20, edges_at(pocket20, [(162.489, 34.208, 62.521)]))
fillet.Radius = 10
doc.recompute()

fillet2 = body.newObject("PartDesign::Fillet", "Fillet001")
fillet2.Base = (fillet, edges_at(fillet, [(162.489, 34.208, 33.979)]))
fillet2.Radius = 10
doc.recompute()

fillet3 = body.newObject("PartDesign::Fillet", "Fillet002")
fillet3.Base = (fillet2, edges_at(fillet2, [(139.691, 20.208, 32.257)]))
fillet3.Radius = 10
doc.recompute()

fillet4 = body.newObject("PartDesign::Fillet", "Fillet003")
fillet4.Base = (fillet3, edges_at(fillet3, [(139.691, 20.208, 64.243)]))
fillet4.Radius = 10
doc.recompute()

fillet5 = body.newObject("PartDesign::Fillet", "Fillet004")
fillet5.Base = (fillet4, edges_at(fillet4, [(106.127, -19.792, 66.779)]))
fillet5.Radius = 10
doc.recompute()

fillet6 = body.newObject("PartDesign::Fillet", "Fillet005")
fillet6.Base = (fillet5, edges_at(fillet5, [(106.127, -19.792, 29.721)]))
fillet6.Radius = 10
doc.recompute()

fillet7 = body.newObject("PartDesign::Fillet", "Fillet006")
fillet7.Base = (fillet6, edges_at(fillet6, [(78.489, -5.792, 68.866)]))
fillet7.Radius = 10
doc.recompute()

fillet8 = body.newObject("PartDesign::Fillet", "Fillet007")
fillet8.Base = (fillet7, edges_at(fillet7, [(78.489, -5.792, 27.634)]))
fillet8.Radius = 10
doc.recompute()

fillet9 = body.newObject("PartDesign::Fillet", "Fillet008")
fillet9.Base = (fillet8, edges_at(fillet8, [(158.148, 107.708, 48.25)]))
fillet9.Radius = 10
doc.recompute()

fillet10 = body.newObject("PartDesign::Fillet", "Fillet009")
fillet10.Base = (fillet9, edges_at(fillet9, [(119.862, 62.208, 48.25)]))
fillet10.Radius = 10
doc.recompute()

fillet11 = body.newObject("PartDesign::Fillet", "Fillet010")
fillet11.Base = (fillet10, edges_at(fillet10, [(142.489, 14.208, 48.25)]))
fillet11.Radius = 10
doc.recompute()

fillet12 = body.newObject("PartDesign::Fillet", "Fillet011")
fillet12.Base = (fillet11, edges_at(fillet11, [(108.925, -25.792, 48.25)]))
fillet12.Radius = 10

doc.recompute()
